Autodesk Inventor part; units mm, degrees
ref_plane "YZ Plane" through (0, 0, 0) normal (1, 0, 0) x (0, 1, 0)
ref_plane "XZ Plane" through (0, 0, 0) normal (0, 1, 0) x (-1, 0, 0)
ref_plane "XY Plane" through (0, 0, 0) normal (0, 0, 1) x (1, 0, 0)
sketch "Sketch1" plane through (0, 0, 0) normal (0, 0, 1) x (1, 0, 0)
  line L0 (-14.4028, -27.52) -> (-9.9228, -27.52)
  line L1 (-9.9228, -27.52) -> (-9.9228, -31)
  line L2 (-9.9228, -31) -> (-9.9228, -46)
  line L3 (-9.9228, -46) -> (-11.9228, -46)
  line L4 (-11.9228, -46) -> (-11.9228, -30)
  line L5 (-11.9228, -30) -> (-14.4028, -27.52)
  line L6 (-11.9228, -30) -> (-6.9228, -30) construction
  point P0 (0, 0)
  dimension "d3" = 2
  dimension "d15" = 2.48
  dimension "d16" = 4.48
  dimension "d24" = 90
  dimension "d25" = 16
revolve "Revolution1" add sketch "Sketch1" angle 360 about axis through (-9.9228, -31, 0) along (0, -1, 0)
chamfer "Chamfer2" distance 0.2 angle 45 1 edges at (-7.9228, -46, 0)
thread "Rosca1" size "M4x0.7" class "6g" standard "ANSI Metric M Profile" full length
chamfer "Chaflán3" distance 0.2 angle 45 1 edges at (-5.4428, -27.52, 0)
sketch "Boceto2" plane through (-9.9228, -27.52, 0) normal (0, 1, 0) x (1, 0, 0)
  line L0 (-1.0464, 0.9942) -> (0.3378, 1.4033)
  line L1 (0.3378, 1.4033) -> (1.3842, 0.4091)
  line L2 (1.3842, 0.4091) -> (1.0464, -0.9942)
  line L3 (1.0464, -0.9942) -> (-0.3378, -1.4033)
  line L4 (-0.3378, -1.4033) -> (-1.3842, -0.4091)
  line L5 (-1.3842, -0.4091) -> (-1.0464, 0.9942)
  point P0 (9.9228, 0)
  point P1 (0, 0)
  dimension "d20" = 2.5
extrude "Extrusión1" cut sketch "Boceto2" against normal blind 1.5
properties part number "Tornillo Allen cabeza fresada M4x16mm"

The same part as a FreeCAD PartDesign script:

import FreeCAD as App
import Part
import Sketcher
Q = App.Units.Quantity


def edges_at(feature, points):
    """Names of the edges that pass closest to the given points."""
    edges = feature.Shape.Edges
    near = lambda p: min(range(len(edges)), key=lambda i: edges[i].distToShape(Part.Vertex(*p))[0])
    return sorted({f"Edge{near(p) + 1}" for p in points})


def add_polygon(sketch, points):
    """Adds a closed chain of lines whose ends are joined by coincident constraints."""
    first, n = sketch.GeometryCount, len(points)
    for a, b in zip(points, points[1:] + points[:1]):
        sketch.addGeometry(Part.LineSegment(App.Vector(*a, 0), App.Vector(*b, 0)), False)
    for i in range(n):
        sketch.addConstraint(Sketcher.Constraint("Coincident", first + i, 2, first + (i + 1) % n, 1))

doc = App.newDocument("Part")
params = doc.addObject("Spreadsheet::Sheet", "Params")
for row, (alias, value) in enumerate([
    ("sketch1_width", "2 mm"),
    ("sketch1_height", "16 mm"),
    ("sketch1_width2", "4.48 mm"),
    ("revolution_angle", "360 deg"),
    ("chamfer_size", "0.2 mm"),
    ("chamfer2_size", "0.2 mm"),
    ("pocket1_length", "1.5 mm"),
], start=1):
    params.set(f"A{row}", alias)
    params.set(f"B{row}", "=" + value)
    params.setAlias(f"B{row}", alias)

body = doc.addObject("PartDesign::Body", "Body")

# Sketch on XY plane
sketch1 = body.newObject("Sketcher::SketchObject", "Sketch")
sketch1.AttachmentSupport = (doc.getObject("XY_Plane"), [""])
sketch1.MapMode = "FlatFace"
add_polygon(sketch1, [(-9.9, -27.5), (-14.4, -27.5), (-11.9, -30), (-11.9, -46), (-9.9, -46)])  # lines 0-4
sketch1.addGeometry(Part.LineSegment(App.Vector(-9.9, -27.5, 0), App.Vector(-9.9, -46, 0)), True)  # axis
sketch1.addConstraint([
    Sketcher.Constraint("Horizontal", 0),
    Sketcher.Constraint("Vertical", 2),
    Sketcher.Constraint("Horizontal", 3),
    Sketcher.Constraint("Vertical", 4),
    Sketcher.Constraint("Vertical", 5),
    Sketcher.Constraint("Coincident", 5, 1, 4, 2),
    Sketcher.Constraint("Horizontal", 2, 2, 5, 2),
    Sketcher.Constraint("DistanceX", 3, 1, 3, 2, 2.0),
    Sketcher.Constraint("DistanceY", 2, 2, 2, 1, 16.0),
    Sketcher.Constraint("DistanceX", 0, 2, 0, 1, 4.48),
    Sketcher.Constraint("Angle", 1, Q("-45 deg")),
    Sketcher.Constraint("DistanceY", 1, 2, -1, 1, 30.0),
    Sketcher.Constraint("DistanceX", 0, 2, -1, 1, 14.4028),
])
sketch1.setExpression("Constraints[12]", "Params.sketch1_width")
sketch1.setExpression("Constraints[13]", "Params.sketch1_height")
sketch1.setExpression("Constraints[14]", "Params.sketch1_width2")
revolution = body.newObject("PartDesign::Revolution", "Revolution")
revolution.Profile = sketch1
revolution.ReferenceAxis = (sketch1, ["Axis0"])
revolution.setExpression("Angle", "Params.revolution_angle")
doc.recompute()

chamfer = body.newObject("PartDesign::Chamfer", "Chamfer")
chamfer.Base = (revolution, edges_at(revolution, [(-7.923, -46, 0)]))
chamfer.setExpression("Size", "Params.chamfer_size")
doc.recompute()

chamfer2 = body.newObject("PartDesign::Chamfer", "Chamfer001")
chamfer2.Base = (chamfer, edges_at(chamfer, [(-5.443, -27.52, 0)]))
chamfer2.setExpression("Size", "Params.chamfer2_size")

# Sketch on XZ plane
sketch2 = body.newObject("Sketcher::SketchObject", "Sketch001")
sketch2.AttachmentSupport = (doc.getObject("XZ_Plane"), [""])
sketch2.MapMode = "FlatFace"
sketch2.AttachmentOffset = App.Placement(App.Vector(0, 0, 27.52), App.Rotation())
add_polygon(sketch2, [(-9.6, -1.4), (-11, -1), (-11.3, 0.4), (-10.3, 1.4), (-8.9, 1), (-8.5, -0.4)])  # lines 0-5
sketch2.addConstraint([
    Sketcher.Constraint("Parallel", 0, 3),
    Sketcher.Constraint("Parallel", 1, 4),
    Sketcher.Constraint("Parallel", 2, 5),
    Sketcher.Constraint("Equal", 0, 1),
    Sketcher.Constraint("Equal", 1, 2),
    Sketcher.Constraint("Equal", 2, 3),
    Sketcher.Constraint("DistanceX", 1, 2, -1, 1, 11.307),
    Sketcher.Constraint("DistanceY", -1, 1, 1, 2, 0.409),
    Sketcher.Constraint("DistanceY", 4, 2, -1, 1, 0.409),
    Sketcher.Constraint("DistanceX", 5, 2, -1, 1, 9.585),
    Sketcher.Constraint("DistanceY", 3, 2, 2, 2, 0.409),
    Sketcher.Constraint("DistanceY", 1, 2, 3, 2, 0.585),
])
pocket1 = body.newObject("PartDesign::Pocket", "Pocket")
pocket1.Profile = sketch2
pocket1.setExpression("Length", "Params.pocket1_length")
pocket1.Reversed = True

doc.recompute()
